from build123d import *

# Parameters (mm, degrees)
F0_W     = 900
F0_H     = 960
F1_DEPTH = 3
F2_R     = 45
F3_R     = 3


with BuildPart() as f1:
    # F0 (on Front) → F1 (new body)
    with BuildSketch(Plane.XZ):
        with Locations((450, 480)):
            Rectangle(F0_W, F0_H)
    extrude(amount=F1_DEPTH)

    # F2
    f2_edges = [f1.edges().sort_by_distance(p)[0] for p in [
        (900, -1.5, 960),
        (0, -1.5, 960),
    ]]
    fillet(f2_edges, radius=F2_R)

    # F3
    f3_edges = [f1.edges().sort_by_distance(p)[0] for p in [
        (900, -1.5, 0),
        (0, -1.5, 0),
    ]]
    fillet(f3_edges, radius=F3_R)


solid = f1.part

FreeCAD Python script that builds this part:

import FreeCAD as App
import Part
import Sketcher

V = App.Vector
Q = App.Units.Quantity


def edges_at(feature, points):
    """Names of the edges that pass closest to the given points."""
    edges = feature.Shape.Edges
    near = lambda p: min(range(len(edges)), key=lambda i: edges[i].distToShape(Part.Vertex(*p))[0])
    return sorted({f"Edge{near(p) + 1}" for p in points})


def add_polygon(sketch, points):
    """Adds a closed chain of lines whose ends are joined by coincident constraints."""
    first, n = sketch.GeometryCount, len(points)
    for a, b in zip(points, points[1:] + points[:1]):
        sketch.addGeometry(Part.LineSegment(App.Vector(*a, 0), App.Vector(*b, 0)), False)
    for i in range(n):
        sketch.addConstraint(Sketcher.Constraint("Coincident", first + i, 2, first + (i + 1) % n, 1))

doc = App.newDocument("Part")
params = doc.addObject("Spreadsheet::Sheet", "Params")
for row, (alias, value) in enumerate([
    ("sketch1_width", "900 mm"),
    ("sketch1_height", "960 mm"),
    ("pad1_length", "3 mm"),
    ("fillet_radius", "45 mm"),
    ("fillet2_radius", "3 mm"),
], start=1):
    params.set(f"A{row}", alias)
    params.set(f"B{row}", "=" + value)
    params.setAlias(f"B{row}", alias)

body = doc.addObject("PartDesign::Body", "Body")

sketch1 = body.newObject("Sketcher::SketchObject", "Sketch")
sketch1.AttachmentSupport = (doc.getObject("XZ_Plane"), [""])
sketch1.MapMode = "FlatFace"
add_polygon(sketch1, [(0, 960), (0, 0), (900, 0), (900, 960)])
sketch1.addConstraint(Sketcher.Constraint("Vertical", 0))
sketch1.addConstraint(Sketcher.Constraint("Horizontal", 1))
sketch1.addConstraint(Sketcher.Constraint("Vertical", 2))
sketch1.addConstraint(Sketcher.Constraint("Horizontal", 3))
sketch1.addConstraint(Sketcher.Constraint("Coincident", 0, 2, -1, 1))
sketch1.addConstraint(Sketcher.Constraint("DistanceX", 1, 1, 1, 2, Q("900 mm")))
sketch1.addConstraint(Sketcher.Constraint("DistanceY", 0, 2, 0, 1, Q("960 mm")))
sketch1.setExpression("Constraints[9]", "Params.sketch1_width")
sketch1.setExpression("Constraints[10]", "Params.sketch1_height")
pad1 = body.newObject("PartDesign::Pad", "Pad")
pad1.Profile = sketch1
pad1.setExpression("Length", "Params.pad1_length")
doc.recompute()

fillet = body.newObject("PartDesign::Fillet", "Fillet")
fillet.Base = (pad1, edges_at(pad1, [(900, -1.5, 960), (0, -1.5, 960)]))
fillet.setExpression("Radius", "Params.fillet_radius")
doc.recompute()

fillet2 = body.newObject("PartDesign::Fillet", "Fillet001")
fillet2.Base = (fillet, edges_at(fillet, [(900, -1.5, 0), (0, -1.5, 0)]))
fillet2.setExpression("Radius", "Params.fillet2_radius")

doc.recompute()
